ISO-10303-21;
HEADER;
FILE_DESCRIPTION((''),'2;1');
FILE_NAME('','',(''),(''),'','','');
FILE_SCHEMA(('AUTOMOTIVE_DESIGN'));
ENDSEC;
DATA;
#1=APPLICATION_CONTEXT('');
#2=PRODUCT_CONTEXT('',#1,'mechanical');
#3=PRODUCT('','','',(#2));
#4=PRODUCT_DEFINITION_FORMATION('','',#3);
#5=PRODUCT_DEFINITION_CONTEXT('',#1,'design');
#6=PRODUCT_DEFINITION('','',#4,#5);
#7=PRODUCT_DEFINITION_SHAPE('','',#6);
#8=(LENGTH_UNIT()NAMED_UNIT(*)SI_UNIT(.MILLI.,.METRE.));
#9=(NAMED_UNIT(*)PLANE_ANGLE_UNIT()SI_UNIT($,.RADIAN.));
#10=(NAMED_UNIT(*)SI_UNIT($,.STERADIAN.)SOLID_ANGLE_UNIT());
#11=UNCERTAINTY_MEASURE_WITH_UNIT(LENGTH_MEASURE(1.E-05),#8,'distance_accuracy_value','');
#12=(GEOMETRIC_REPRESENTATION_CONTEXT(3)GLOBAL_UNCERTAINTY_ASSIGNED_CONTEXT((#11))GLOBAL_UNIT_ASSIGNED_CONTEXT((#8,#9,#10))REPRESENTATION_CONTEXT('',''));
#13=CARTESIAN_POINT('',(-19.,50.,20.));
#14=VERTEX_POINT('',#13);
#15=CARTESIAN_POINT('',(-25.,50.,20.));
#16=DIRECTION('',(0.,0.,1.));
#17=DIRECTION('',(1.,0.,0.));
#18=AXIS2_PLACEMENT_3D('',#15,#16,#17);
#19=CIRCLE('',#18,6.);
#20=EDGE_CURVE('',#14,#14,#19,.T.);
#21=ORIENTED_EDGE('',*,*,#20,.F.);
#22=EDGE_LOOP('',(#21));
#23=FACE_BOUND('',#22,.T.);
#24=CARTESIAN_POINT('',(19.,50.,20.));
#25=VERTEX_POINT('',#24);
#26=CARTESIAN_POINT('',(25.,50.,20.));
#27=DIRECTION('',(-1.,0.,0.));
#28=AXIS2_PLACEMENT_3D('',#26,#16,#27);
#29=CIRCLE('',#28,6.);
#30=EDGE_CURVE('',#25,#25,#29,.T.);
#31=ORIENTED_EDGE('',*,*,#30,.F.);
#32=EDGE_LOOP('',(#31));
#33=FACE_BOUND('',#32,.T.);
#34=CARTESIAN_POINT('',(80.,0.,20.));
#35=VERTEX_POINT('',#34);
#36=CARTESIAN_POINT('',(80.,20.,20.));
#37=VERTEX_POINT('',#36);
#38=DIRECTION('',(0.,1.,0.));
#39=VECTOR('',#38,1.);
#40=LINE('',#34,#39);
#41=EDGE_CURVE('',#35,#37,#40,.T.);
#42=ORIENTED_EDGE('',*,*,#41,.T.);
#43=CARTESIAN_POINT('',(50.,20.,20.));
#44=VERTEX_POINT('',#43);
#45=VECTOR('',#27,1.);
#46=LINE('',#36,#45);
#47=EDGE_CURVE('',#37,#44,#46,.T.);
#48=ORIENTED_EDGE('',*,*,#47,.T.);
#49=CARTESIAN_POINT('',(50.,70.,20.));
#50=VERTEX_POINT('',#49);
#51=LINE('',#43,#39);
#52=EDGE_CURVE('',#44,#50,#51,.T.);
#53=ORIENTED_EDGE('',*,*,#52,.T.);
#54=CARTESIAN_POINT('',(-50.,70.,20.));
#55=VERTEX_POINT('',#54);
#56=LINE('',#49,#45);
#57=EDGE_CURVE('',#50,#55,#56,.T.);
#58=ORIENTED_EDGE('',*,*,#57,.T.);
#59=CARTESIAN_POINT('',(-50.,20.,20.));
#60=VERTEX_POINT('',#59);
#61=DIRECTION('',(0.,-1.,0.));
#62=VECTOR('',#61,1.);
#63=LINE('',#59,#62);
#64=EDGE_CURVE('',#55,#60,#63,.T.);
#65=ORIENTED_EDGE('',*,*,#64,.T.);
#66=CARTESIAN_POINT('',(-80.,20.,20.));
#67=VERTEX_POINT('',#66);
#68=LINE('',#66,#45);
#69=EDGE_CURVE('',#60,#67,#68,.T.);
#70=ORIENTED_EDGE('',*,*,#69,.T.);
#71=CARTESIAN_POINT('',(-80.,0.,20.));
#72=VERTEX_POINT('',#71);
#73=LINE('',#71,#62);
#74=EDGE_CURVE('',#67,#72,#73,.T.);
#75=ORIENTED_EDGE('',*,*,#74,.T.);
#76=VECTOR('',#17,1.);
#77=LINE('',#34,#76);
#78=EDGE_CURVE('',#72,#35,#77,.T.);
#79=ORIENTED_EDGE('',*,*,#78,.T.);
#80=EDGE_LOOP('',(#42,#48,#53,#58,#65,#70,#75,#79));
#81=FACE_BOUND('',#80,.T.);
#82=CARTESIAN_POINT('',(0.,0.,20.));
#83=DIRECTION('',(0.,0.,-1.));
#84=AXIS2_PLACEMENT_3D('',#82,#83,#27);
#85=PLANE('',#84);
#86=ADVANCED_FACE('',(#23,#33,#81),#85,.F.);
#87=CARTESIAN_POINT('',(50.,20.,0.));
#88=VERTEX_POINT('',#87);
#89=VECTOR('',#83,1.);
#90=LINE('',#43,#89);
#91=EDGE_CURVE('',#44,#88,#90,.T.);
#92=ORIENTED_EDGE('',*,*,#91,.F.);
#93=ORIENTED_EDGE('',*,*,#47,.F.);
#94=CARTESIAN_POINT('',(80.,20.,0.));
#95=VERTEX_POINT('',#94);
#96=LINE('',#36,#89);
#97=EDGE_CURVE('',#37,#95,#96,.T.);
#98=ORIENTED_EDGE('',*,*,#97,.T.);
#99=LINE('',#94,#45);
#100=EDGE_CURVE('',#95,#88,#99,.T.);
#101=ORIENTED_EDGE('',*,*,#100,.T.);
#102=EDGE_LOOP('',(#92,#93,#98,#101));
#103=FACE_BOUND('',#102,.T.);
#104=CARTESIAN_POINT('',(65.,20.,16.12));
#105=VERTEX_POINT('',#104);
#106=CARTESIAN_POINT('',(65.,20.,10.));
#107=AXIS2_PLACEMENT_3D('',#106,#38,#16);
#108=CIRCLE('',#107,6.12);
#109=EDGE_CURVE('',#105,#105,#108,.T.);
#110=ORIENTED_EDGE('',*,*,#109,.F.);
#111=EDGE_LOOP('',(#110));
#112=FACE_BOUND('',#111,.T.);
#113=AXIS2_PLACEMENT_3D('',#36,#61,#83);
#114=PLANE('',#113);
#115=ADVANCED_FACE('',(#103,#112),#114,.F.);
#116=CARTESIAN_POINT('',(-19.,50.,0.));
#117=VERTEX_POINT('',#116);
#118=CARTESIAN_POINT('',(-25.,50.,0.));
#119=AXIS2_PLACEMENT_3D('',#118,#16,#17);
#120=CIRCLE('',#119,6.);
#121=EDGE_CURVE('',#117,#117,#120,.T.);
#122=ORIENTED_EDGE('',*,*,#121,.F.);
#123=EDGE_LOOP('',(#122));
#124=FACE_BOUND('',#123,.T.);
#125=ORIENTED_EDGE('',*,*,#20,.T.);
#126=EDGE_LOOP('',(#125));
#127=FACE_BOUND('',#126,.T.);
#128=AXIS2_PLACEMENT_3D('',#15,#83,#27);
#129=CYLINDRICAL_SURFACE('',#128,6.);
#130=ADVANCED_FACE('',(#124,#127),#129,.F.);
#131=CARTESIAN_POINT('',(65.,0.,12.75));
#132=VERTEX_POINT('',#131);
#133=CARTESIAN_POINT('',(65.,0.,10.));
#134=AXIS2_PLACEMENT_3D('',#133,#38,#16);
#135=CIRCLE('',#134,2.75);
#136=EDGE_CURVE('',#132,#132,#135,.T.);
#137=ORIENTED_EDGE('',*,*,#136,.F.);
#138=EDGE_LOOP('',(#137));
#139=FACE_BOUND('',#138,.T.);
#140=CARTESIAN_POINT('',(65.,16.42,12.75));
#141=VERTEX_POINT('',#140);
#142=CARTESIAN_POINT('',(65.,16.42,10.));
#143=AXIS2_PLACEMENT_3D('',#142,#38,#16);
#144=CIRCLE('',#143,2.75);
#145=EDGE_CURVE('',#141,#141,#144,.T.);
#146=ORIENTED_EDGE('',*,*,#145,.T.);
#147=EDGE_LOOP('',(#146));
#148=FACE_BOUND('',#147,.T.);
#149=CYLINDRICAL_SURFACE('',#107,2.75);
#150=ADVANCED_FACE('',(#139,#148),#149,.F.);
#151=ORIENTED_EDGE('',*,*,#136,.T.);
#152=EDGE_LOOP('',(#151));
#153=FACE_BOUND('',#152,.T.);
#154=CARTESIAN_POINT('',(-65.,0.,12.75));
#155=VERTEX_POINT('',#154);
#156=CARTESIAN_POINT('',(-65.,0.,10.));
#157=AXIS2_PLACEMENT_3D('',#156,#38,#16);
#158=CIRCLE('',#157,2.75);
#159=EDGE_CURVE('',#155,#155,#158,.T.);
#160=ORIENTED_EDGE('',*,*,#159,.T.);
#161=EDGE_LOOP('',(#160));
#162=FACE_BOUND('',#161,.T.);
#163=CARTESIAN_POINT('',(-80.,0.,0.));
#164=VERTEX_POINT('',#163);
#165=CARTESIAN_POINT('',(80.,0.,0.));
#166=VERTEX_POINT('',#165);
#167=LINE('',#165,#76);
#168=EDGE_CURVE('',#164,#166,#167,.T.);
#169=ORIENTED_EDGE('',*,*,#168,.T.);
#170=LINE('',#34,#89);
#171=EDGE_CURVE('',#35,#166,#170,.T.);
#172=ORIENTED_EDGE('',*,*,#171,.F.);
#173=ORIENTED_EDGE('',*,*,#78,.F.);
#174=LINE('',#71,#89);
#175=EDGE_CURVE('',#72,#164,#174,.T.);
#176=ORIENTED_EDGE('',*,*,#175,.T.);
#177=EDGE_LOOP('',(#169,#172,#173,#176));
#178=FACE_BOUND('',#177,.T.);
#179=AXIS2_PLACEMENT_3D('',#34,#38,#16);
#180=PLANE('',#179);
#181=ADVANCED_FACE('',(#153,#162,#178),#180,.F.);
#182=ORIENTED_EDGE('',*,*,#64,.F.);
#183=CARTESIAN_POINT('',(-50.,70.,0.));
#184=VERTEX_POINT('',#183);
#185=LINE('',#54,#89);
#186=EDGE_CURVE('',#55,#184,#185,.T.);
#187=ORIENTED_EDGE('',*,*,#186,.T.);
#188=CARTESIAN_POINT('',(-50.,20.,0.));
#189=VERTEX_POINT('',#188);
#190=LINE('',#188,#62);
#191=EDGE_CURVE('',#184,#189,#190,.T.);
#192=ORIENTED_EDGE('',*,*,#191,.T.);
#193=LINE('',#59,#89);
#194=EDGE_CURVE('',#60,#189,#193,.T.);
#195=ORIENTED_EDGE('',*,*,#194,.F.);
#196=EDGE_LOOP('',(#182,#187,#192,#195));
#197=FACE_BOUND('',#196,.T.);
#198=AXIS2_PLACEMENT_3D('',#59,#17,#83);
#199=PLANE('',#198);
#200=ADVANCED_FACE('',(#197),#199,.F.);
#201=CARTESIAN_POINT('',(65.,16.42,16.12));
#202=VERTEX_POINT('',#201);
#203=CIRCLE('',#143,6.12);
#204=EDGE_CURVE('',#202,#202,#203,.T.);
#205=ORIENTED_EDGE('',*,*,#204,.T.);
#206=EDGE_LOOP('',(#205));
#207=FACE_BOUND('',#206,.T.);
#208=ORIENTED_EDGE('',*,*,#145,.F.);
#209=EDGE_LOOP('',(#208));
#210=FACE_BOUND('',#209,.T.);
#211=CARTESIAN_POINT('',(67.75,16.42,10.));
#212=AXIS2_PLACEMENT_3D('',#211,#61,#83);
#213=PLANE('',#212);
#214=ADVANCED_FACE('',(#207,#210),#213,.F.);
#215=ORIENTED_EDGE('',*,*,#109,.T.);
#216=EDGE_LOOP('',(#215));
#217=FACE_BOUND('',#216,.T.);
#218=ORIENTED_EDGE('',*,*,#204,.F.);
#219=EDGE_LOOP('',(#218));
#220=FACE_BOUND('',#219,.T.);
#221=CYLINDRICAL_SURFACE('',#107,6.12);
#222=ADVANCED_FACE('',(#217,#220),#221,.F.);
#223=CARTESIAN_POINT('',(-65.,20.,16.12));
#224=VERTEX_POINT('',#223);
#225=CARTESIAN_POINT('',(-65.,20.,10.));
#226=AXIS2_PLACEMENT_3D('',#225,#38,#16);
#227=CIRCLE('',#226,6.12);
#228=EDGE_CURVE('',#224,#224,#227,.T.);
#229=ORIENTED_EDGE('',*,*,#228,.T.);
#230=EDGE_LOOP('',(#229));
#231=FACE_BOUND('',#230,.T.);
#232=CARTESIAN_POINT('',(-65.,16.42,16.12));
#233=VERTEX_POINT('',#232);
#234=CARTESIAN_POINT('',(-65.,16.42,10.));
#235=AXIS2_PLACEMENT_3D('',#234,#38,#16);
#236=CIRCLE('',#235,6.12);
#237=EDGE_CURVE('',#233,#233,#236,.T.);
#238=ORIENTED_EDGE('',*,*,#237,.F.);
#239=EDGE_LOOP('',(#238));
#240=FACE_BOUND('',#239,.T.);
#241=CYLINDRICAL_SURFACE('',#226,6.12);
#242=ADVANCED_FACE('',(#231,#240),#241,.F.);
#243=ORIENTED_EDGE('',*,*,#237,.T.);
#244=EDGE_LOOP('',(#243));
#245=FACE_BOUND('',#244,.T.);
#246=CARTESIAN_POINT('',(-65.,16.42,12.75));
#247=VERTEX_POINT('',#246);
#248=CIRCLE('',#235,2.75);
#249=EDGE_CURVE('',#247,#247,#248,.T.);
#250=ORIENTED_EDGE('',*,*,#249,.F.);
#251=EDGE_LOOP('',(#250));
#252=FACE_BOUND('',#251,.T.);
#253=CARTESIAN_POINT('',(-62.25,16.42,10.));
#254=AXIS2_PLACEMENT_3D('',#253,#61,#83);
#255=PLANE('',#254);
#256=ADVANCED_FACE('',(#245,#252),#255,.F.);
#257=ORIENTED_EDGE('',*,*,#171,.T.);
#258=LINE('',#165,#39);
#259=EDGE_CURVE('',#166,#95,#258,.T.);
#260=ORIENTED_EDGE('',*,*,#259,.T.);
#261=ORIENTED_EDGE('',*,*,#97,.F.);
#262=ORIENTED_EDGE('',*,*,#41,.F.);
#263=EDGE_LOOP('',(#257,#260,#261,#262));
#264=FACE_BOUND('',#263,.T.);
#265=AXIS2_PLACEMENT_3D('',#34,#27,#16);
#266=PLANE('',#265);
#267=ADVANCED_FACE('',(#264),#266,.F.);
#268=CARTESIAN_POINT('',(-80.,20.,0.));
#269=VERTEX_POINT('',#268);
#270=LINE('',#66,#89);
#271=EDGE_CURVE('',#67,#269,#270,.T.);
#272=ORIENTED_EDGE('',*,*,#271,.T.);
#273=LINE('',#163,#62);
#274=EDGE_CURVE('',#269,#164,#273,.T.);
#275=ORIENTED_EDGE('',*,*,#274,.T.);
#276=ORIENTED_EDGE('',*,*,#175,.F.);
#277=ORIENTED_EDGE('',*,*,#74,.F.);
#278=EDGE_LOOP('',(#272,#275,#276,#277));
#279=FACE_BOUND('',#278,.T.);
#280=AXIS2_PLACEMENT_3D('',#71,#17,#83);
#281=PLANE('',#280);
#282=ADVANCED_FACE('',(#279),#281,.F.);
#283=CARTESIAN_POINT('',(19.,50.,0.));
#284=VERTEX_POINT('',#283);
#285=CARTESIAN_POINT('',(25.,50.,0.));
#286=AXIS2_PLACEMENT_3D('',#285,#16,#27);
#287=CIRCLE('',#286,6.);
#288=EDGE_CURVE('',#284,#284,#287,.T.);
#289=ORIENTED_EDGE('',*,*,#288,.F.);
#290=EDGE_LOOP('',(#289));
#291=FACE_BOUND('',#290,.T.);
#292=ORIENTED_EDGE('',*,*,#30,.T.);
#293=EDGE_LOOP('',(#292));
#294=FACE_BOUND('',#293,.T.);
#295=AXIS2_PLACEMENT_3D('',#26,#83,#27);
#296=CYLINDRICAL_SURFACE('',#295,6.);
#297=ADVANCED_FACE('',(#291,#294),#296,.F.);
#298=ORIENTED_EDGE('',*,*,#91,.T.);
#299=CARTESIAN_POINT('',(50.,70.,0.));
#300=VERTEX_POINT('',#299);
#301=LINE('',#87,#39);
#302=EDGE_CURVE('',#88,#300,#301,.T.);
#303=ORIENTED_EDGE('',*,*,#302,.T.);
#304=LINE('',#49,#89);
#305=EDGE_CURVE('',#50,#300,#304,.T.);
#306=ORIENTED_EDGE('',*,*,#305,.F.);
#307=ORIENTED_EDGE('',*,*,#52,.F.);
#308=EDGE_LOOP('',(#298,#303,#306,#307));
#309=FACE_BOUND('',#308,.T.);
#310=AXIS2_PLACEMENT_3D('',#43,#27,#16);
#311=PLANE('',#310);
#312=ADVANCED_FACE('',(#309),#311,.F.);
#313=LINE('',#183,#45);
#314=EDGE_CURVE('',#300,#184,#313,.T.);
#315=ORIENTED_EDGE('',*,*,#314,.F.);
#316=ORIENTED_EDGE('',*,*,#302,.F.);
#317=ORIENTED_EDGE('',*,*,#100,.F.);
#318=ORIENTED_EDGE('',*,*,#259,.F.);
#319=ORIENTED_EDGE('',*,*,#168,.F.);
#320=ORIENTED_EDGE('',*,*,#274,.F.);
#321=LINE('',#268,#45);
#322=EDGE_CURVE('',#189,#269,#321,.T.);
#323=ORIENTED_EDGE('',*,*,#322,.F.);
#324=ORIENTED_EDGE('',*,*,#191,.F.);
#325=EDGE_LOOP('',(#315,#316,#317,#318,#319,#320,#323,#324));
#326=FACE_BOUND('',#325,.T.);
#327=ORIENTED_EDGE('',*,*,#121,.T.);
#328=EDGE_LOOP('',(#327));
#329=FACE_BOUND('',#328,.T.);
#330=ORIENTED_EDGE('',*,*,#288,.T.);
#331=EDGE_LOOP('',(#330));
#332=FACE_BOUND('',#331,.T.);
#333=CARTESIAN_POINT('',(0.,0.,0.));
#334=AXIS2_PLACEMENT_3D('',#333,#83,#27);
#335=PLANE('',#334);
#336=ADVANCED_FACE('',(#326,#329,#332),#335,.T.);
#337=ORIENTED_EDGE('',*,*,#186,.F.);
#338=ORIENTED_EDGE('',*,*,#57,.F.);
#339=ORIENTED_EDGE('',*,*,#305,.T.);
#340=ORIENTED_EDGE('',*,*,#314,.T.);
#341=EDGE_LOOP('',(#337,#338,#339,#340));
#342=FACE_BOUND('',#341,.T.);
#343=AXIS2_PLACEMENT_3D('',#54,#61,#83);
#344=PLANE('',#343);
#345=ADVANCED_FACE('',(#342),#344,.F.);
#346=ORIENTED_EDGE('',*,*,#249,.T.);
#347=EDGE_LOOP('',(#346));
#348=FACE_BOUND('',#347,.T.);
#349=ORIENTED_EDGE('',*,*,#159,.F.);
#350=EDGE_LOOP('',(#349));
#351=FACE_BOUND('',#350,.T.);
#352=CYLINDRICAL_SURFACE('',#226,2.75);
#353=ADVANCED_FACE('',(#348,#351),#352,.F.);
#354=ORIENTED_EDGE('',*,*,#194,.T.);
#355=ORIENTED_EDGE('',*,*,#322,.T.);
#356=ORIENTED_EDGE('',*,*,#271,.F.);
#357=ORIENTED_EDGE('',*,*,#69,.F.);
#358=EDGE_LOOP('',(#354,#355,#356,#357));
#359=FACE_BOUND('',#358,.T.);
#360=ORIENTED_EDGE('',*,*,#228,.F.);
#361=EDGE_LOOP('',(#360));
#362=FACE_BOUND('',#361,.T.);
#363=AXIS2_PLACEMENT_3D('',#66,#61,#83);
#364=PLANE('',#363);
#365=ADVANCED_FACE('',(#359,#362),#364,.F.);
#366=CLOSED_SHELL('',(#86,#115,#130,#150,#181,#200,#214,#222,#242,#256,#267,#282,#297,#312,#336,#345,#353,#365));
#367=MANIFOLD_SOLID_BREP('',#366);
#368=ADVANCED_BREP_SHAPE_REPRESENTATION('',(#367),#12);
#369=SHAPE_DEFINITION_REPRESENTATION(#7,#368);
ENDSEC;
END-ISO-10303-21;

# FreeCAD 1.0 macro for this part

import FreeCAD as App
import Part
import Sketcher
from FreeCAD import Vector


def add_polygon(sketch, points):
    """Adds a closed chain of lines whose ends are joined by coincident constraints."""
    first, n = sketch.GeometryCount, len(points)
    for a, b in zip(points, points[1:] + points[:1]):
        sketch.addGeometry(Part.LineSegment(App.Vector(*a, 0), App.Vector(*b, 0)), False)
    for i in range(n):
        sketch.addConstraint(Sketcher.Constraint("Coincident", first + i, 2, first + (i + 1) % n, 1))

doc = App.newDocument("Part")
params = doc.addObject("Spreadsheet::Sheet", "Params")
for row, (alias, value) in enumerate([
    ("sketch1_diameter", "12 mm"),
    ("sketch1_width", "160 mm"),
    ("sketch1_width2", "30 mm"),
    ("sketch1_height", "20 mm"),
    ("sketch1_height2", "50 mm"),
    ("pad1_length", "20 mm"),
    ("sketch2_diameter", "5.5 mm"),
    ("hole_diameter", "5.5 mm"),
    ("hole_cbore_diameter", "12.24 mm"),
    ("hole_cbore_depth", "3.58 mm"),
], start=1):
    params.set(f"A{row}", alias)
    params.set(f"B{row}", "=" + value)
    params.setAlias(f"B{row}", alias)

body = doc.addObject("PartDesign::Body", "Body")

sketch1 = body.newObject("Sketcher::SketchObject", "Sketch")
sketch1.AttachmentSupport = (doc.getObject("XY_Plane"), [""])
sketch1.MapMode = "FlatFace"
add_polygon(sketch1, [(-80, 0), (80, 0), (80, 20), (50, 20), (50, 70), (-50, 70), (-50, 20), (-80, 20)])
sketch1.addGeometry(Part.Circle(Vector(25, 50, 0), Vector(0, 0, 1), 6), False)
sketch1.addGeometry(Part.Circle(Vector(-25, 50, 0), Vector(0, 0, 1), 6), False)
sketch1.addConstraint(Sketcher.Constraint("Horizontal", 0))
sketch1.addConstraint(Sketcher.Constraint("Vertical", 1))
sketch1.addConstraint(Sketcher.Constraint("Horizontal", 2))
sketch1.addConstraint(Sketcher.Constraint("Vertical", 3))
sketch1.addConstraint(Sketcher.Constraint("Horizontal", 4))
sketch1.addConstraint(Sketcher.Constraint("Vertical", 5))
sketch1.addConstraint(Sketcher.Constraint("Horizontal", 6))
sketch1.addConstraint(Sketcher.Constraint("Vertical", 7))
sketch1.addConstraint(Sketcher.Constraint("Equal", 8, 9))
sketch1.addConstraint(Sketcher.Constraint("Symmetric", 0, 2, 7, 2, -1, 1))
sketch1.addConstraint(Sketcher.Constraint("Symmetric", 8, 3, 9, 3, -2))
sketch1.addConstraint(Sketcher.Constraint("Symmetric", 2, 2, 5, 2, -2))
sketch1.addConstraint(Sketcher.Constraint("Diameter", 8, 12.0))
sketch1.addConstraint(Sketcher.Constraint("DistanceX", 0, 1, 0, 2, 160.0))
sketch1.addConstraint(Sketcher.Constraint("DistanceX", 2, 2, 2, 1, 30.0))
sketch1.addConstraint(Sketcher.Constraint("DistanceY", 1, 1, 1, 2, 20.0))
sketch1.addConstraint(Sketcher.Constraint("DistanceY", 3, 1, 3, 2, 50.0))
sketch1.addConstraint(Sketcher.Constraint("DistanceX", -1, 1, 8, 3, 25.0))
sketch1.addConstraint(Sketcher.Constraint("DistanceY", -1, 1, 8, 3, 50.0))
sketch1.setExpression("Constraints[20]", "Params.sketch1_diameter")
sketch1.setExpression("Constraints[21]", "Params.sketch1_width")
sketch1.setExpression("Constraints[22]", "Params.sketch1_width2")
sketch1.setExpression("Constraints[23]", "Params.sketch1_height")
sketch1.setExpression("Constraints[24]", "Params.sketch1_height2")
pad1 = body.newObject("PartDesign::Pad", "Pad")
pad1.Profile = sketch1
pad1.setExpression("Length", "Params.pad1_length")

sketch2 = body.newObject("Sketcher::SketchObject", "Sketch001")
sketch2.AttachmentSupport = (doc.getObject("XZ_Plane"), [""])
sketch2.MapMode = "FlatFace"
sketch2.AttachmentOffset = App.Placement(Vector(0, 0, -20), App.Rotation())
sketch2.addGeometry(Part.Circle(Vector(-65, 10, 0), Vector(0, 0, 1), 2.8), False)
sketch2.addGeometry(Part.Circle(Vector(65, 10, 0), Vector(0, 0, 1), 2.8), False)
sketch2.addConstraint(Sketcher.Constraint("Equal", 0, 1))
sketch2.addConstraint(Sketcher.Constraint("Symmetric", 0, 3, 1, 3, -2))
sketch2.addConstraint(Sketcher.Constraint("Diameter", 0, 5.5))
sketch2.addConstraint(Sketcher.Constraint("DistanceX", 0, 3, -1, 1, 65.0))
sketch2.addConstraint(Sketcher.Constraint("DistanceY", -1, 1, 0, 3, 10.0))
sketch2.setExpression("Constraints[2]", "Params.sketch2_diameter")
doc.recompute()
hole = body.newObject("PartDesign::Hole", "Hole")
hole.Profile = sketch2
hole.ThreadType = "None"
hole.setExpression("Diameter", "Params.hole_diameter")
hole.DepthType = "ThroughAll"
hole.HoleCutType = "Counterbore"
hole.setExpression("HoleCutDiameter", "Params.hole_cbore_diameter")
hole.setExpression("HoleCutDepth", "Params.hole_cbore_depth")
hole.Reversed = True

doc.recompute()
